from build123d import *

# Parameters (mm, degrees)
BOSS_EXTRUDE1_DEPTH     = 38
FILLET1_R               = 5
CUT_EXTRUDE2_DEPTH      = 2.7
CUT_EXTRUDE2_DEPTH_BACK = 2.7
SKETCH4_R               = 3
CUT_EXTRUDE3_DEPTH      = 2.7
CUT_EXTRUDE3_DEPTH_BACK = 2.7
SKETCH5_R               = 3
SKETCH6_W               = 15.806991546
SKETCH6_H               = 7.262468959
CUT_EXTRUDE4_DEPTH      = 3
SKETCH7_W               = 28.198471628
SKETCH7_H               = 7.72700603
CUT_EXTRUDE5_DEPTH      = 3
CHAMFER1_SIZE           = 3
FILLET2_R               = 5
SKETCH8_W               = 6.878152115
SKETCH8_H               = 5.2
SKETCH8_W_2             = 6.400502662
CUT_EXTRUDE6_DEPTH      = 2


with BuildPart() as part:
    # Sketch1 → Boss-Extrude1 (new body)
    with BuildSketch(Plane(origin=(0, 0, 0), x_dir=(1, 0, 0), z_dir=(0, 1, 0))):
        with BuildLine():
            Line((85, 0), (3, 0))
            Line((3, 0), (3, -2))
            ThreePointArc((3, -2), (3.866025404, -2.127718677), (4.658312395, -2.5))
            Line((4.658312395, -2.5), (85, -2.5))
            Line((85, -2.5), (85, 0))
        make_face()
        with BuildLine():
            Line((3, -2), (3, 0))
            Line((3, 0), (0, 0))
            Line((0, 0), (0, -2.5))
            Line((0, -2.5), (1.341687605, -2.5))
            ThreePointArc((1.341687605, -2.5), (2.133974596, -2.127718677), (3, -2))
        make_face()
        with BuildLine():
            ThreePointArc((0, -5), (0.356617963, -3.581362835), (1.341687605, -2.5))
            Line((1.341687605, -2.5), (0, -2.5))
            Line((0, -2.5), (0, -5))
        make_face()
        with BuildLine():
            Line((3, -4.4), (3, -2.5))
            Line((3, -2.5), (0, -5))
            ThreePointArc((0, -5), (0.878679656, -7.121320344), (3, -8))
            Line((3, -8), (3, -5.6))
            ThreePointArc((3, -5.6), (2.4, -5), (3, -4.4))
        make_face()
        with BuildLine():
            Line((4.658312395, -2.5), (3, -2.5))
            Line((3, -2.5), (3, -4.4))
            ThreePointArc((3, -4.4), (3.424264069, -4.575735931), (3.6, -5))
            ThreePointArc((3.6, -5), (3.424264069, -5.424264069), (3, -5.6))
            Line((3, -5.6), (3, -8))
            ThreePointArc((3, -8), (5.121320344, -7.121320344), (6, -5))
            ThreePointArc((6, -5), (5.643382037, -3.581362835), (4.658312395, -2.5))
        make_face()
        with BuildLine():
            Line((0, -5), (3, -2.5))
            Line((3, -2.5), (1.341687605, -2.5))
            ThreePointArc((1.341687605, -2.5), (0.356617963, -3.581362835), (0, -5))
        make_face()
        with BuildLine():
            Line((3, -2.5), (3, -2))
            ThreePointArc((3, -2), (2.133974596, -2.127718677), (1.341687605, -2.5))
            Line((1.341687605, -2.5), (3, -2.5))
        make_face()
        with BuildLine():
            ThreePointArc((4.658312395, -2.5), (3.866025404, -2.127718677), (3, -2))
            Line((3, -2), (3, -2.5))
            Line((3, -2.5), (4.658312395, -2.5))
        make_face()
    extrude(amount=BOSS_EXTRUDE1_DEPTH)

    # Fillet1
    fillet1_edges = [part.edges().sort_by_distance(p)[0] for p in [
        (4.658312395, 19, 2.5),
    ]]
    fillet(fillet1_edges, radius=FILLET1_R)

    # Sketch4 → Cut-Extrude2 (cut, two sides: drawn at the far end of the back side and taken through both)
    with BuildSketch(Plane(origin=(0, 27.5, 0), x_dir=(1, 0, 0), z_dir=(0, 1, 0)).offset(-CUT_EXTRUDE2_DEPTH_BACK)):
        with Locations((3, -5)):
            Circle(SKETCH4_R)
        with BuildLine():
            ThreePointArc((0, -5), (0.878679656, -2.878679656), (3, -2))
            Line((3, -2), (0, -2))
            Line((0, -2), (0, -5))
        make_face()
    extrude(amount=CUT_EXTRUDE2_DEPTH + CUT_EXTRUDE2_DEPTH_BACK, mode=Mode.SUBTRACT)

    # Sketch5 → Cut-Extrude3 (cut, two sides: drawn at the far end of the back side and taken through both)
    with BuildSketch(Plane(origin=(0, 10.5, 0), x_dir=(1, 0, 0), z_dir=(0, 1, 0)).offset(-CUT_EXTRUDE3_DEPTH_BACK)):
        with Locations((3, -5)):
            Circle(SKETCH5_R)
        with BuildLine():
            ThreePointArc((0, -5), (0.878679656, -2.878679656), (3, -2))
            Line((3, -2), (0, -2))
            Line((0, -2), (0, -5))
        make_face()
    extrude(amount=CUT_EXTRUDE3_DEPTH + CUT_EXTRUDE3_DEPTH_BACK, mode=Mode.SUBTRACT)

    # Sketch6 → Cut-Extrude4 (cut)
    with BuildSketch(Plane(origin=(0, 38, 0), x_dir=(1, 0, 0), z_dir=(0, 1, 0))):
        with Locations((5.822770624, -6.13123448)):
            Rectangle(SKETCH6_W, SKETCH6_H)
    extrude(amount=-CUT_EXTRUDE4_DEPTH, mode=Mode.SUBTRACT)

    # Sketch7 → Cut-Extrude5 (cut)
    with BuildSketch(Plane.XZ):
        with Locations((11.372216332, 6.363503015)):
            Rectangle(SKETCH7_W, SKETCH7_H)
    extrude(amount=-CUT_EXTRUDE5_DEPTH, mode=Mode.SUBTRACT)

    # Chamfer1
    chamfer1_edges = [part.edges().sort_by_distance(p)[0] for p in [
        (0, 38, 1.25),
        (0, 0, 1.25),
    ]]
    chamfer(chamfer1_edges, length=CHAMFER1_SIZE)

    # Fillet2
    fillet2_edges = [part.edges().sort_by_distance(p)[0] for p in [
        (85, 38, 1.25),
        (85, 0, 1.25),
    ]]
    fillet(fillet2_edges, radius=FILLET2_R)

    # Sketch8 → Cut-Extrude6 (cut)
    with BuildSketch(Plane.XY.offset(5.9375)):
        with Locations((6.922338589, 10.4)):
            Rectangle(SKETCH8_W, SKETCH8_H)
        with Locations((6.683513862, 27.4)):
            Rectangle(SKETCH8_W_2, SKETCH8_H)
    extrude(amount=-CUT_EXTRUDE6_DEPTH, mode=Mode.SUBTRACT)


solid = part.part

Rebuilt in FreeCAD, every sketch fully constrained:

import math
import FreeCAD as App
import Part
import Sketcher
Q = App.Units.Quantity


def edges_at(feature, points):
    """Names of the edges that pass closest to the given points."""
    edges = feature.Shape.Edges
    near = lambda p: min(range(len(edges)), key=lambda i: edges[i].distToShape(Part.Vertex(*p))[0])
    return sorted({f"Edge{near(p) + 1}" for p in points})

doc = App.newDocument("Part")
params = doc.addObject("Spreadsheet::Sheet", "Params")
for row, (alias, value) in enumerate([
    ("sketch1_radius", "3 mm"),
    ("sketch1_radius2", "0.6 mm"),
    ("sketch1_width", "85 mm"),
    ("sketch1_height", "5 mm"),
    ("sketch1_height2", "2.5 mm"),
    ("pad1_length", "38 mm"),
    ("fillet_radius", "5 mm"),
    ("sketch2_radius", "3 mm"),
    ("pocket1_length", "2.7 mm"),
    ("pocket1_length2", "2.7 mm"),
    ("sketch3_radius", "3 mm"),
    ("pocket2_length", "2.7 mm"),
    ("pocket2_length2", "2.7 mm"),
    ("pocket3_length", "3 mm"),
    ("pocket4_length", "3 mm"),
    ("chamfer_size", "3 mm"),
    ("fillet2_radius", "5 mm"),
    ("sketch6_height", "5.2 mm"),
    ("pocket5_length", "2 mm"),
], start=1):
    params.set(f"A{row}", alias)
    params.set(f"B{row}", "=" + value)
    params.setAlias(f"B{row}", alias)

body = doc.addObject("PartDesign::Body", "Body")

# Sketch on XZ plane
sketch1 = body.newObject("Sketcher::SketchObject", "Sketch")
sketch1.AttachmentSupport = (doc.getObject("XZ_Plane"), [""])
sketch1.MapMode = "FlatFace"
sketch1.addGeometry([
    Part.ArcOfCircle(Part.Circle(App.Vector(3, 5, 0), App.Vector(0, 0, 1), 3), math.radians(-56), math.radians(0)),  # 0
    Part.LineSegment(App.Vector(4.7, 2.5, 0), App.Vector(85, 2.5, 0)),  # 1
    Part.LineSegment(App.Vector(85, 2.5, 0), App.Vector(85, 0, 0)),  # 2
    Part.LineSegment(App.Vector(85, 0, 0), App.Vector(0, 0, 0)),  # 3
    Part.LineSegment(App.Vector(0, 0, 0), App.Vector(0, 5, 0)),  # 4
    Part.ArcOfCircle(Part.Circle(App.Vector(3, 5, 0), App.Vector(0, 0, 1), 3), math.radians(90), math.radians(180)),  # 5
    Part.ArcOfCircle(Part.Circle(App.Vector(3, 5, 0), App.Vector(0, 0, 1), 3), math.radians(0), math.radians(90)),  # 6
    Part.ArcOfCircle(Part.Circle(App.Vector(3, 5, 0), App.Vector(0, 0, 1), 0.6), math.radians(0), math.radians(90)),  # 7
    Part.ArcOfCircle(Part.Circle(App.Vector(3, 5, 0), App.Vector(0, 0, 1), 0.6), math.radians(90), math.radians(270)),  # 8
    Part.ArcOfCircle(Part.Circle(App.Vector(3, 5, 0), App.Vector(0, 0, 1), 0.6), math.radians(-90), math.radians(0)),  # 9
], False)
sketch1.addConstraint([
    Sketcher.Constraint("Coincident", 0, 1, 1, 1),
    Sketcher.Constraint("Coincident", 1, 2, 2, 1),
    Sketcher.Constraint("Coincident", 2, 2, 3, 1),
    Sketcher.Constraint("Coincident", 3, 2, 4, 1),
    Sketcher.Constraint("Tangent", 4, 2, 5, 2),
    Sketcher.Constraint("Tangent", 5, 1, 6, 2),
    Sketcher.Constraint("Tangent", 6, 1, 0, 2),
    Sketcher.Constraint("Tangent", 7, 2, 8, 1),
    Sketcher.Constraint("Tangent", 8, 2, 9, 1),
    Sketcher.Constraint("Tangent", 9, 2, 7, 1),
    Sketcher.Constraint("Horizontal", 1),
    Sketcher.Constraint("Vertical", 2),
    Sketcher.Constraint("Horizontal", 3),
    Sketcher.Constraint("Vertical", 4),
    Sketcher.Constraint("Coincident", 3, 2, -1, 1),
    Sketcher.Constraint("Coincident", 5, 3, 0, 3),
    Sketcher.Constraint("Coincident", 7, 3, 0, 3),
    Sketcher.Constraint("Horizontal", 4, 2, 6, 1),
    Sketcher.Constraint("Horizontal", 6, 1, 9, 2),
    Sketcher.Constraint("Vertical", 9, 3, 5, 1),
    Sketcher.Constraint("Vertical", 5, 1, 7, 2),
    Sketcher.Constraint("Vertical", 7, 2, 8, 2),
    Sketcher.Constraint("Radius", 0, Q("3 mm")),
    Sketcher.Constraint("Radius", 7, Q("0.6 mm")),
    Sketcher.Constraint("DistanceX", 3, 2, 3, 1, Q("85 mm")),
    Sketcher.Constraint("DistanceY", 4, 1, 4, 2, Q("5 mm")),
    Sketcher.Constraint("DistanceY", 2, 2, 2, 1, Q("2.5 mm")),
])
sketch1.setExpression("Constraints[22]", "Params.sketch1_radius")
sketch1.setExpression("Constraints[23]", "Params.sketch1_radius2")
sketch1.setExpression("Constraints[24]", "Params.sketch1_width")
sketch1.setExpression("Constraints[25]", "Params.sketch1_height")
sketch1.setExpression("Constraints[26]", "Params.sketch1_height2")
pad1 = body.newObject("PartDesign::Pad", "Pad")
pad1.Profile = sketch1
pad1.setExpression("Length", "Params.pad1_length")
pad1.Reversed = True
doc.recompute()

fillet = body.newObject("PartDesign::Fillet", "Fillet")
fillet.Base = (pad1, edges_at(pad1, [(4.658, 19, 2.5)]))
fillet.setExpression("Radius", "Params.fillet_radius")

# Sketch on XZ plane
sketch2 = body.newObject("Sketcher::SketchObject", "Sketch001")
sketch2.AttachmentSupport = (doc.getObject("XZ_Plane"), [""])
sketch2.MapMode = "FlatFace"
sketch2.AttachmentOffset = App.Placement(App.Vector(0, 0, -27.5), App.Rotation())
sketch2.addGeometry([
    Part.LineSegment(App.Vector(3, 2, 0), App.Vector(0, 2, 0)),
    Part.LineSegment(App.Vector(0, 2, 0), App.Vector(0, 5, 0)),
    Part.ArcOfCircle(Part.Circle(App.Vector(3, 5, 0), App.Vector(0, 0, 1), 3), math.radians(-90), math.radians(180)),
], False)
sketch2.addConstraint([
    Sketcher.Constraint("Coincident", 0, 2, 1, 1),
    Sketcher.Constraint("Tangent", 1, 2, 2, 2),
    Sketcher.Constraint("Tangent", 2, 1, 0, 1),
    Sketcher.Constraint("Horizontal", 0),
    Sketcher.Constraint("Vertical", 1),
    Sketcher.Constraint("PointOnObject", 0, 2, -2),
    Sketcher.Constraint("Radius", 2, Q("3 mm")),
    Sketcher.Constraint("DistanceY", -1, 1, 2, 3, Q("5 mm")),
])
sketch2.setExpression("Constraints[6]", "Params.sketch2_radius")
pocket1 = body.newObject("PartDesign::Pocket", "Pocket")
pocket1.Profile = sketch2
pocket1.Type = "TwoLengths"
pocket1.setExpression("Length", "Params.pocket1_length")
pocket1.setExpression("Length2", "Params.pocket1_length2")

# Sketch on XZ plane
sketch3 = body.newObject("Sketcher::SketchObject", "Sketch002")
sketch3.AttachmentSupport = (doc.getObject("XZ_Plane"), [""])
sketch3.MapMode = "FlatFace"
sketch3.AttachmentOffset = App.Placement(App.Vector(0, 0, -10.5), App.Rotation())
sketch3.addGeometry([
    Part.LineSegment(App.Vector(3, 2, 0), App.Vector(0, 2, 0)),
    Part.LineSegment(App.Vector(0, 2, 0), App.Vector(0, 5, 0)),
    Part.ArcOfCircle(Part.Circle(App.Vector(3, 5, 0), App.Vector(0, 0, 1), 3), math.radians(-90), math.radians(180)),
], False)
sketch3.addConstraint([
    Sketcher.Constraint("Coincident", 0, 2, 1, 1),
    Sketcher.Constraint("Tangent", 1, 2, 2, 2),
    Sketcher.Constraint("Tangent", 2, 1, 0, 1),
    Sketcher.Constraint("Horizontal", 0),
    Sketcher.Constraint("Vertical", 1),
    Sketcher.Constraint("PointOnObject", 0, 2, -2),
    Sketcher.Constraint("Radius", 2, Q("3 mm")),
    Sketcher.Constraint("DistanceY", -1, 1, 2, 3, Q("5 mm")),
])
sketch3.setExpression("Constraints[6]", "Params.sketch3_radius")
pocket2 = body.newObject("PartDesign::Pocket", "Pocket001")
pocket2.Profile = sketch3
pocket2.Type = "TwoLengths"
pocket2.setExpression("Length", "Params.pocket2_length")
pocket2.setExpression("Length2", "Params.pocket2_length2")

# Sketch on XZ plane
sketch4 = body.newObject("Sketcher::SketchObject", "Sketch003")
sketch4.AttachmentSupport = (doc.getObject("XZ_Plane"), [""])
sketch4.MapMode = "FlatFace"
sketch4.AttachmentOffset = App.Placement(App.Vector(0, 0, -38), App.Rotation())
sketch4.addGeometry([
    Part.LineSegment(App.Vector(-2, 3, 0), App.Vector(-2, 10, 0)),
    Part.LineSegment(App.Vector(-2, 10, 0), App.Vector(14, 10, 0)),
    Part.LineSegment(App.Vector(14, 10, 0), App.Vector(14, 3, 0)),
    Part.LineSegment(App.Vector(14, 3, 0), App.Vector(-2, 3, 0)),
], False)
sketch4.addConstraint([
    Sketcher.Constraint("Coincident", 0, 2, 1, 1),
    Sketcher.Constraint("Coincident", 1, 2, 2, 1),
    Sketcher.Constraint("Coincident", 2, 2, 3, 1),
    Sketcher.Constraint("Coincident", 3, 2, 0, 1),
    Sketcher.Constraint("Vertical", 0),
    Sketcher.Constraint("Horizontal", 1),
    Sketcher.Constraint("Vertical", 2),
    Sketcher.Constraint("Horizontal", 3),
    Sketcher.Constraint("DistanceY", -1, 1, 2, 2, Q("2.5 mm")),
    Sketcher.Constraint("DistanceX", 1, 1, 1, 2, Q("15.806992 mm")),
    Sketcher.Constraint("DistanceY", 0, 1, 0, 2, Q("7.262469 mm")),
    Sketcher.Constraint("DistanceX", 0, 2, -1, 1, Q("2.080725 mm")),
])
pocket3 = body.newObject("PartDesign::Pocket", "Pocket002")
pocket3.Profile = sketch4
pocket3.setExpression("Length", "Params.pocket3_length")
pocket3.Reversed = True

# Sketch on XZ plane
sketch5 = body.newObject("Sketcher::SketchObject", "Sketch004")
sketch5.AttachmentSupport = (doc.getObject("XZ_Plane"), [""])
sketch5.MapMode = "FlatFace"
sketch5.addGeometry([
    Part.LineSegment(App.Vector(-3, 10, 0), App.Vector(-3, 2, 0)),
    Part.LineSegment(App.Vector(-3, 2, 0), App.Vector(25, 2, 0)),
    Part.LineSegment(App.Vector(25, 2, 0), App.Vector(25, 10, 0)),
    Part.LineSegment(App.Vector(25, 10, 0), App.Vector(-3, 10, 0)),
], False)
sketch5.addConstraint([
    Sketcher.Constraint("Coincident", 0, 2, 1, 1),
    Sketcher.Constraint("Coincident", 1, 2, 2, 1),
    Sketcher.Constraint("Coincident", 2, 2, 3, 1),
    Sketcher.Constraint("Coincident", 3, 2, 0, 1),
    Sketcher.Constraint("Vertical", 0),
    Sketcher.Constraint("Horizontal", 1),
    Sketcher.Constraint("Vertical", 2),
    Sketcher.Constraint("Horizontal", 3),
    Sketcher.Constraint("DistanceY", -1, 1, 0, 2, Q("2.5 mm")),
    Sketcher.Constraint("DistanceX", 1, 1, 1, 2, Q("28.198472 mm")),
    Sketcher.Constraint("DistanceY", 0, 2, 0, 1, Q("7.727006 mm")),
    Sketcher.Constraint("DistanceX", 0, 2, -1, 1, Q("2.727019 mm")),
])
pocket4 = body.newObject("PartDesign::Pocket", "Pocket003")
pocket4.Profile = sketch5
pocket4.setExpression("Length", "Params.pocket4_length")
doc.recompute()

chamfer = body.newObject("PartDesign::Chamfer", "Chamfer")
chamfer.Base = (pocket4, edges_at(pocket4, [(0, 38, 1.25), (0, 0, 1.25)]))
chamfer.setExpression("Size", "Params.chamfer_size")
doc.recompute()

fillet2 = body.newObject("PartDesign::Fillet", "Fillet001")
fillet2.Base = (chamfer, edges_at(chamfer, [(85, 38, 1.25), (85, 0, 1.25)]))
fillet2.setExpression("Radius", "Params.fillet2_radius")

# Sketch on XY plane
sketch6 = body.newObject("Sketcher::SketchObject", "Sketch005")
sketch6.AttachmentSupport = (doc.getObject("XY_Plane"), [""])
sketch6.MapMode = "FlatFace"
sketch6.AttachmentOffset = App.Placement(App.Vector(0, 0, 5.9375), App.Rotation())
sketch6.addGeometry([
    Part.LineSegment(App.Vector(3, 13, 0), App.Vector(3, 8, 0)),  # 0
    Part.LineSegment(App.Vector(3, 8, 0), App.Vector(10, 8, 0)),  # 1
    Part.LineSegment(App.Vector(10, 8, 0), App.Vector(10, 13, 0)),  # 2
    Part.LineSegment(App.Vector(10, 13, 0), App.Vector(3, 13, 0)),  # 3
    Part.LineSegment(App.Vector(3, 30, 0), App.Vector(3, 25, 0)),  # 4
    Part.LineSegment(App.Vector(3, 25, 0), App.Vector(10, 25, 0)),  # 5
    Part.LineSegment(App.Vector(10, 25, 0), App.Vector(10, 30, 0)),  # 6
    Part.LineSegment(App.Vector(10, 30, 0), App.Vector(3, 30, 0)),  # 7
], False)
sketch6.addConstraint([
    Sketcher.Constraint("Coincident", 0, 2, 1, 1),
    Sketcher.Constraint("Coincident", 1, 2, 2, 1),
    Sketcher.Constraint("Coincident", 2, 2, 3, 1),
    Sketcher.Constraint("Coincident", 3, 2, 0, 1),
    Sketcher.Constraint("Coincident", 4, 2, 5, 1),
    Sketcher.Constraint("Coincident", 5, 2, 6, 1),
    Sketcher.Constraint("Coincident", 6, 2, 7, 1),
    Sketcher.Constraint("Coincident", 7, 2, 4, 1),
    Sketcher.Constraint("Vertical", 0),
    Sketcher.Constraint("Horizontal", 1),
    Sketcher.Constraint("Vertical", 2),
    Sketcher.Constraint("Horizontal", 3),
    Sketcher.Constraint("Vertical", 4),
    Sketcher.Constraint("Horizontal", 5),
    Sketcher.Constraint("Vertical", 6),
    Sketcher.Constraint("Horizontal", 7),
    Sketcher.Constraint("Vertical", 3, 2, 4, 2),
    Sketcher.Constraint("Equal", 2, 4),
    Sketcher.Constraint("DistanceY", 0, 2, 0, 1, Q("5.2 mm")),
    Sketcher.Constraint("DistanceY", -1, 1, 2, 2, Q("13 mm")),
    Sketcher.Constraint("DistanceY", -1, 1, 6, 2, Q("30 mm")),
    Sketcher.Constraint("DistanceX", 1, 1, 1, 2, Q("6.878152 mm")),
    Sketcher.Constraint("DistanceX", 5, 1, 5, 2, Q("6.400503 mm")),
    Sketcher.Constraint("DistanceX", -1, 1, 0, 2, Q("3.483263 mm")),
])
sketch6.setExpression("Constraints[18]", "Params.sketch6_height")
pocket5 = body.newObject("PartDesign::Pocket", "Pocket004")
pocket5.Profile = sketch6
pocket5.setExpression("Length", "Params.pocket5_length")

doc.recompute()
